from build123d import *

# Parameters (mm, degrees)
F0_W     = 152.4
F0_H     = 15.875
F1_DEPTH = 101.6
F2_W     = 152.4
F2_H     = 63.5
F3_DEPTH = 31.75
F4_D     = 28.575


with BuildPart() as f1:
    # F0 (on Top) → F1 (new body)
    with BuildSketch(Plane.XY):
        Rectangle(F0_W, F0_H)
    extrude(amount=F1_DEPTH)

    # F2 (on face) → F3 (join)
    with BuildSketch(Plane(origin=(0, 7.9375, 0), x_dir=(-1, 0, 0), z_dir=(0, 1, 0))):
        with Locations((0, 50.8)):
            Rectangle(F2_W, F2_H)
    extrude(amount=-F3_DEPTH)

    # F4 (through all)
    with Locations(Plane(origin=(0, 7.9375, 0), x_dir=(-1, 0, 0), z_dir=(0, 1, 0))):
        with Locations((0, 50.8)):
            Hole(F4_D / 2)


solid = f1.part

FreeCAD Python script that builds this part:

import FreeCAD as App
import Part
import Sketcher
from FreeCAD import Vector
Q = App.Units.Quantity


def add_polygon(sketch, points):
    """Adds a closed chain of lines whose ends are joined by coincident constraints."""
    first, n = sketch.GeometryCount, len(points)
    for a, b in zip(points, points[1:] + points[:1]):
        sketch.addGeometry(Part.LineSegment(App.Vector(*a, 0), App.Vector(*b, 0)), False)
    for i in range(n):
        sketch.addConstraint(Sketcher.Constraint("Coincident", first + i, 2, first + (i + 1) % n, 1))

doc = App.newDocument("Part")
body = doc.addObject("PartDesign::Body", "Body")

sketch1 = body.newObject("Sketcher::SketchObject", "Sketch")
sketch1.AttachmentSupport = (doc.getObject("XY_Plane"), [""])
sketch1.MapMode = "FlatFace"
add_polygon(sketch1, [(-76, 8), (-76, -8), (76, -8), (76, 8)])
sketch1.addConstraint([
    Sketcher.Constraint("Vertical", 0),
    Sketcher.Constraint("Horizontal", 1),
    Sketcher.Constraint("Vertical", 2),
    Sketcher.Constraint("Horizontal", 3),
    Sketcher.Constraint("Symmetric", 0, 2, 2, 2, -1, 1),
    Sketcher.Constraint("DistanceX", 1, 1, 1, 2, Q("6 in")),
    Sketcher.Constraint("DistanceY", 0, 2, 0, 1, Q("0.625 in")),
])
pad1 = body.newObject("PartDesign::Pad", "Pad")
pad1.Profile = sketch1
pad1.Length = Q("4 in")

sketch2 = body.newObject("Sketcher::SketchObject", "Sketch001")
sketch2.AttachmentSupport = (doc.getObject("XZ_Plane"), [""])
sketch2.MapMode = "FlatFace"
sketch2.AttachmentOffset = App.Placement(Vector(0, 0, -0.3125 * 25.4), App.Rotation())
add_polygon(sketch2, [(76, 83), (76, 19), (-76, 19), (-76, 83)])
sketch2.addConstraint([
    Sketcher.Constraint("Vertical", 0),
    Sketcher.Constraint("Horizontal", 1),
    Sketcher.Constraint("Vertical", 2),
    Sketcher.Constraint("Horizontal", 3),
    Sketcher.Constraint("DistanceX", 1, 2, 1, 1, Q("6 in")),
    Sketcher.Constraint("DistanceY", 0, 2, 0, 1, Q("2.5 in")),
    Sketcher.Constraint("DistanceX", -1, 1, 0, 2, Q("3 in")),
    Sketcher.Constraint("DistanceY", -1, 1, 0, 2, Q("0.75 in")),
])
pad2 = body.newObject("PartDesign::Pad", "Pad001")
pad2.Profile = sketch2
pad2.Length = Q("1.25 in")

sketch3 = body.newObject("Sketcher::SketchObject", "Sketch002")
sketch3.AttachmentSupport = (doc.getObject("XZ_Plane"), [""])
sketch3.MapMode = "FlatFace"
sketch3.AttachmentOffset = App.Placement(Vector(0, 0, -0.3125 * 25.4), App.Rotation())
sketch3.addGeometry(Part.Circle(Vector(0, 51, 0), Vector(0, 0, 1), 14), False)
sketch3.addConstraint([
    Sketcher.Constraint("PointOnObject", 0, 3, -2),
    Sketcher.Constraint("Diameter", 0, Q("1.125 in")),
    Sketcher.Constraint("DistanceY", -1, 1, 0, 3, Q("2 in")),
])
doc.recompute()
hole = body.newObject("PartDesign::Hole", "Hole")
hole.Profile = sketch3
hole.ThreadType = "None"
hole.Diameter = Q("1.125 in")
hole.DepthType = "ThroughAll"
hole.Reversed = True

doc.recompute()
